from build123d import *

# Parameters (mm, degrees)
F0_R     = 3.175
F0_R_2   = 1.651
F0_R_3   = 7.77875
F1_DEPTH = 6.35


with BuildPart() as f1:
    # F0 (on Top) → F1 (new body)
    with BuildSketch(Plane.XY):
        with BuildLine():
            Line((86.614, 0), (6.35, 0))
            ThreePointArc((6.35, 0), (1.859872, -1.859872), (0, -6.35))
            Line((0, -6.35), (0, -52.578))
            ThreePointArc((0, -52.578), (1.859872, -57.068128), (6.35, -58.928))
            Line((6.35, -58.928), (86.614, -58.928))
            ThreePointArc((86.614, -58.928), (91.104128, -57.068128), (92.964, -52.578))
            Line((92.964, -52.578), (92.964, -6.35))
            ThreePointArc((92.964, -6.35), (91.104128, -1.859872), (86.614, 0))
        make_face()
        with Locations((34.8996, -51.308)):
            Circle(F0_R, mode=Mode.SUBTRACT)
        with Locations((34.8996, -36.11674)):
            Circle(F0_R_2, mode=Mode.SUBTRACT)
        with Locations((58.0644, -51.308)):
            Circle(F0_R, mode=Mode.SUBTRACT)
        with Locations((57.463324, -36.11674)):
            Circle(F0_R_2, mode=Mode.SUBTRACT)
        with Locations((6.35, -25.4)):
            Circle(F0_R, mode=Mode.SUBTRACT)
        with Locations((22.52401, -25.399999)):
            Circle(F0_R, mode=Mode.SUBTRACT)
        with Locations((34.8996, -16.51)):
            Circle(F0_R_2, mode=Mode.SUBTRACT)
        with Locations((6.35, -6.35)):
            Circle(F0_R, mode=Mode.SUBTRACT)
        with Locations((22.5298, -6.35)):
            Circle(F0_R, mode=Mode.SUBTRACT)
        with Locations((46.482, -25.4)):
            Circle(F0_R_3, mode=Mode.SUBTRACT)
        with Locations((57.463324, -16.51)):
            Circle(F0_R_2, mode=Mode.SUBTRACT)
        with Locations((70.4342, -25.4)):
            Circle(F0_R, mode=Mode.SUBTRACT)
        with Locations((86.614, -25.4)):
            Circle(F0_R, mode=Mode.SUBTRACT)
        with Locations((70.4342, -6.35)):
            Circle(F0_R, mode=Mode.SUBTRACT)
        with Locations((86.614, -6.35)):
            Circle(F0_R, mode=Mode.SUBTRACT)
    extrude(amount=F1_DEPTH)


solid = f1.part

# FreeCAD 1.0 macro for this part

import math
import FreeCAD as App
import Part
import Sketcher
Q = App.Units.Quantity

doc = App.newDocument("Part")
body = doc.addObject("PartDesign::Body", "Body")

sketch1 = doc.addObject("Sketcher::SketchObject", "Sketch")
body.addObject(sketch1)
sketch1.AttachmentSupport = (doc.XY_Plane, [""])
sketch1.MapMode = "FlatFace"
sketch1.addGeometry([
    Part.LineSegment(App.Vector(86.6, 0, 0), App.Vector(6.3, 0, 0)),
    Part.ArcOfCircle(Part.Circle(App.Vector(6.4, -6.4, 0), App.Vector(0, 0, 1), 6.4), math.radians(90), math.radians(180)),
    Part.LineSegment(App.Vector(0, -6.3, 0), App.Vector(0, -52.6, 0)),
    Part.ArcOfCircle(Part.Circle(App.Vector(6.4, -52.6, 0), App.Vector(0, 0, 1), 6.4), math.radians(-180), math.radians(-90)),
    Part.LineSegment(App.Vector(6.3, -58.9, 0), App.Vector(86.6, -58.9, 0)),
    Part.ArcOfCircle(Part.Circle(App.Vector(86.6, -52.6, 0), App.Vector(0, 0, 1), 6.4), math.radians(-90), math.radians(0)),
    Part.LineSegment(App.Vector(93, -52.6, 0), App.Vector(93, -6.3, 0)),
    Part.ArcOfCircle(Part.Circle(App.Vector(86.6, -6.4, 0), App.Vector(0, 0, 1), 6.4), math.radians(0), math.radians(90)),
    Part.Circle(App.Vector(34.9, -51.3, 0), App.Vector(0, 0, 1), 3.2),
    Part.Circle(App.Vector(34.9, -36.1, 0), App.Vector(0, 0, 1), 1.7),
    Part.Circle(App.Vector(58.1, -51.3, 0), App.Vector(0, 0, 1), 3.2),
    Part.Circle(App.Vector(57.5, -36.1, 0), App.Vector(0, 0, 1), 1.7),
    Part.Circle(App.Vector(6.3, -25.4, 0), App.Vector(0, 0, 1), 3.2),
    Part.Circle(App.Vector(22.5, -25.4, 0), App.Vector(0, 0, 1), 3.2),
    Part.Circle(App.Vector(46.5, -25.4, 0), App.Vector(0, 0, 1), 7.8),
    Part.Circle(App.Vector(34.9, -16.5, 0), App.Vector(0, 0, 1), 1.7),
    Part.Circle(App.Vector(6.3, -6.3, 0), App.Vector(0, 0, 1), 3.2),
    Part.Circle(App.Vector(22.5, -6.3, 0), App.Vector(0, 0, 1), 3.2),
    Part.Circle(App.Vector(57.5, -16.5, 0), App.Vector(0, 0, 1), 1.7),
    Part.Circle(App.Vector(70.4, -25.4, 0), App.Vector(0, 0, 1), 3.2),
    Part.Circle(App.Vector(86.6, -25.4, 0), App.Vector(0, 0, 1), 3.2),
    Part.Circle(App.Vector(70.4, -6.3, 0), App.Vector(0, 0, 1), 3.2),
    Part.Circle(App.Vector(86.6, -6.3, 0), App.Vector(0, 0, 1), 3.2),
], False)
sketch1.addConstraint([
    Sketcher.Constraint("Tangent", 0, 2, 1, 1),
    Sketcher.Constraint("Tangent", 1, 2, 2, 1),
    Sketcher.Constraint("Tangent", 2, 2, 3, 1),
    Sketcher.Constraint("Tangent", 3, 2, 4, 1),
    Sketcher.Constraint("Tangent", 4, 2, 5, 1),
    Sketcher.Constraint("Tangent", 5, 2, 6, 1),
    Sketcher.Constraint("Tangent", 6, 2, 7, 1),
    Sketcher.Constraint("Tangent", 7, 2, 0, 1),
    Sketcher.Constraint("Horizontal", 0),
    Sketcher.Constraint("Vertical", 2),
    Sketcher.Constraint("Horizontal", 4),
    Sketcher.Constraint("Vertical", 6),
    Sketcher.Constraint("Coincident", 16, 3, 1, 3),
    Sketcher.Constraint("Coincident", 22, 3, 7, 3),
    Sketcher.Constraint("Equal", 1, 3),
    Sketcher.Constraint("Equal", 3, 5),
    Sketcher.Constraint("Equal", 5, 7),
    Sketcher.Constraint("Equal", 8, 10),
    Sketcher.Constraint("Equal", 9, 11),
    Sketcher.Constraint("Equal", 10, 12),
    Sketcher.Constraint("Equal", 12, 13),
    Sketcher.Constraint("Equal", 11, 15),
    Sketcher.Constraint("Equal", 13, 16),
    Sketcher.Constraint("Equal", 16, 17),
    Sketcher.Constraint("Equal", 15, 18),
    Sketcher.Constraint("Equal", 17, 19),
    Sketcher.Constraint("Equal", 19, 20),
    Sketcher.Constraint("Equal", 20, 21),
    Sketcher.Constraint("Equal", 21, 22),
    Sketcher.Constraint("PointOnObject", 0, 2, -1),
    Sketcher.Constraint("PointOnObject", 1, 2, -2),
    Sketcher.Constraint("Horizontal", 8, 3, 10, 3),
    Sketcher.Constraint("Horizontal", 9, 3, 11, 3),
    Sketcher.Constraint("Horizontal", 12, 3, 13, 3),
    Sketcher.Constraint("Horizontal", 13, 3, 14, 3),
    Sketcher.Constraint("Horizontal", 16, 3, 17, 3),
    Sketcher.Constraint("Horizontal", 15, 3, 18, 3),
    Sketcher.Constraint("Horizontal", 14, 3, 19, 3),
    Sketcher.Constraint("Horizontal", 19, 3, 20, 3),
    Sketcher.Constraint("Horizontal", 17, 3, 21, 3),
    Sketcher.Constraint("Vertical", 8, 3, 9, 3),
    Sketcher.Constraint("Vertical", 3, 3, 12, 3),
    Sketcher.Constraint("Vertical", 9, 3, 15, 3),
    Sketcher.Constraint("Vertical", 11, 3, 18, 3),
    Sketcher.Constraint("Vertical", 7, 3, 20, 3),
    Sketcher.Constraint("Vertical", 19, 3, 21, 3),
    Sketcher.Constraint("Diameter", 8, Q("0.25 in")),
    Sketcher.Constraint("Diameter", 9, Q("0.13 in")),
    Sketcher.Constraint("Radius", 1, Q("0.25 in")),
    Sketcher.Constraint("DistanceY", 12, 3, -1, 1, Q("1 in")),
    Sketcher.Constraint("Diameter", 14, Q("0.6125 in")),
    Sketcher.Constraint("DistanceX", 0, 2, 0, 1, Q("3.16 in")),
    Sketcher.Constraint("DistanceY", 2, 2, 2, 1, Q("1.82 in")),
    Sketcher.Constraint("DistanceY", 15, 3, 16, 3, Q("0.4 in")),
    Sketcher.Constraint("DistanceY", 3, 2, 8, 3, Q("0.3 in")),
    Sketcher.Constraint("DistanceX", -1, 1, 14, 3, Q("1.83 in")),
    Sketcher.Constraint("DistanceX", -1, 1, 8, 3, Q("1.374 in")),
    Sketcher.Constraint("DistanceX", -1, 1, 10, 3, Q("2.286 in")),
    Sketcher.Constraint("DistanceX", -1, 1, 17, 3, Q("0.887 in")),
    Sketcher.Constraint("DistanceX", -1, 1, 19, 3, Q("2.773 in")),
    Sketcher.Constraint("DistanceY", 9, 3, -1, 1, 36.11674),
    Sketcher.Constraint("DistanceX", -1, 1, 13, 3, 22.52401),
    Sketcher.Constraint("DistanceX", -1, 1, 11, 3, 57.463324),
])
pad1 = doc.addObject("PartDesign::Pad", "Pad")
body.addObject(pad1)
pad1.Profile = sketch1
pad1.Length = Q("0.25 in")

doc.recompute()
